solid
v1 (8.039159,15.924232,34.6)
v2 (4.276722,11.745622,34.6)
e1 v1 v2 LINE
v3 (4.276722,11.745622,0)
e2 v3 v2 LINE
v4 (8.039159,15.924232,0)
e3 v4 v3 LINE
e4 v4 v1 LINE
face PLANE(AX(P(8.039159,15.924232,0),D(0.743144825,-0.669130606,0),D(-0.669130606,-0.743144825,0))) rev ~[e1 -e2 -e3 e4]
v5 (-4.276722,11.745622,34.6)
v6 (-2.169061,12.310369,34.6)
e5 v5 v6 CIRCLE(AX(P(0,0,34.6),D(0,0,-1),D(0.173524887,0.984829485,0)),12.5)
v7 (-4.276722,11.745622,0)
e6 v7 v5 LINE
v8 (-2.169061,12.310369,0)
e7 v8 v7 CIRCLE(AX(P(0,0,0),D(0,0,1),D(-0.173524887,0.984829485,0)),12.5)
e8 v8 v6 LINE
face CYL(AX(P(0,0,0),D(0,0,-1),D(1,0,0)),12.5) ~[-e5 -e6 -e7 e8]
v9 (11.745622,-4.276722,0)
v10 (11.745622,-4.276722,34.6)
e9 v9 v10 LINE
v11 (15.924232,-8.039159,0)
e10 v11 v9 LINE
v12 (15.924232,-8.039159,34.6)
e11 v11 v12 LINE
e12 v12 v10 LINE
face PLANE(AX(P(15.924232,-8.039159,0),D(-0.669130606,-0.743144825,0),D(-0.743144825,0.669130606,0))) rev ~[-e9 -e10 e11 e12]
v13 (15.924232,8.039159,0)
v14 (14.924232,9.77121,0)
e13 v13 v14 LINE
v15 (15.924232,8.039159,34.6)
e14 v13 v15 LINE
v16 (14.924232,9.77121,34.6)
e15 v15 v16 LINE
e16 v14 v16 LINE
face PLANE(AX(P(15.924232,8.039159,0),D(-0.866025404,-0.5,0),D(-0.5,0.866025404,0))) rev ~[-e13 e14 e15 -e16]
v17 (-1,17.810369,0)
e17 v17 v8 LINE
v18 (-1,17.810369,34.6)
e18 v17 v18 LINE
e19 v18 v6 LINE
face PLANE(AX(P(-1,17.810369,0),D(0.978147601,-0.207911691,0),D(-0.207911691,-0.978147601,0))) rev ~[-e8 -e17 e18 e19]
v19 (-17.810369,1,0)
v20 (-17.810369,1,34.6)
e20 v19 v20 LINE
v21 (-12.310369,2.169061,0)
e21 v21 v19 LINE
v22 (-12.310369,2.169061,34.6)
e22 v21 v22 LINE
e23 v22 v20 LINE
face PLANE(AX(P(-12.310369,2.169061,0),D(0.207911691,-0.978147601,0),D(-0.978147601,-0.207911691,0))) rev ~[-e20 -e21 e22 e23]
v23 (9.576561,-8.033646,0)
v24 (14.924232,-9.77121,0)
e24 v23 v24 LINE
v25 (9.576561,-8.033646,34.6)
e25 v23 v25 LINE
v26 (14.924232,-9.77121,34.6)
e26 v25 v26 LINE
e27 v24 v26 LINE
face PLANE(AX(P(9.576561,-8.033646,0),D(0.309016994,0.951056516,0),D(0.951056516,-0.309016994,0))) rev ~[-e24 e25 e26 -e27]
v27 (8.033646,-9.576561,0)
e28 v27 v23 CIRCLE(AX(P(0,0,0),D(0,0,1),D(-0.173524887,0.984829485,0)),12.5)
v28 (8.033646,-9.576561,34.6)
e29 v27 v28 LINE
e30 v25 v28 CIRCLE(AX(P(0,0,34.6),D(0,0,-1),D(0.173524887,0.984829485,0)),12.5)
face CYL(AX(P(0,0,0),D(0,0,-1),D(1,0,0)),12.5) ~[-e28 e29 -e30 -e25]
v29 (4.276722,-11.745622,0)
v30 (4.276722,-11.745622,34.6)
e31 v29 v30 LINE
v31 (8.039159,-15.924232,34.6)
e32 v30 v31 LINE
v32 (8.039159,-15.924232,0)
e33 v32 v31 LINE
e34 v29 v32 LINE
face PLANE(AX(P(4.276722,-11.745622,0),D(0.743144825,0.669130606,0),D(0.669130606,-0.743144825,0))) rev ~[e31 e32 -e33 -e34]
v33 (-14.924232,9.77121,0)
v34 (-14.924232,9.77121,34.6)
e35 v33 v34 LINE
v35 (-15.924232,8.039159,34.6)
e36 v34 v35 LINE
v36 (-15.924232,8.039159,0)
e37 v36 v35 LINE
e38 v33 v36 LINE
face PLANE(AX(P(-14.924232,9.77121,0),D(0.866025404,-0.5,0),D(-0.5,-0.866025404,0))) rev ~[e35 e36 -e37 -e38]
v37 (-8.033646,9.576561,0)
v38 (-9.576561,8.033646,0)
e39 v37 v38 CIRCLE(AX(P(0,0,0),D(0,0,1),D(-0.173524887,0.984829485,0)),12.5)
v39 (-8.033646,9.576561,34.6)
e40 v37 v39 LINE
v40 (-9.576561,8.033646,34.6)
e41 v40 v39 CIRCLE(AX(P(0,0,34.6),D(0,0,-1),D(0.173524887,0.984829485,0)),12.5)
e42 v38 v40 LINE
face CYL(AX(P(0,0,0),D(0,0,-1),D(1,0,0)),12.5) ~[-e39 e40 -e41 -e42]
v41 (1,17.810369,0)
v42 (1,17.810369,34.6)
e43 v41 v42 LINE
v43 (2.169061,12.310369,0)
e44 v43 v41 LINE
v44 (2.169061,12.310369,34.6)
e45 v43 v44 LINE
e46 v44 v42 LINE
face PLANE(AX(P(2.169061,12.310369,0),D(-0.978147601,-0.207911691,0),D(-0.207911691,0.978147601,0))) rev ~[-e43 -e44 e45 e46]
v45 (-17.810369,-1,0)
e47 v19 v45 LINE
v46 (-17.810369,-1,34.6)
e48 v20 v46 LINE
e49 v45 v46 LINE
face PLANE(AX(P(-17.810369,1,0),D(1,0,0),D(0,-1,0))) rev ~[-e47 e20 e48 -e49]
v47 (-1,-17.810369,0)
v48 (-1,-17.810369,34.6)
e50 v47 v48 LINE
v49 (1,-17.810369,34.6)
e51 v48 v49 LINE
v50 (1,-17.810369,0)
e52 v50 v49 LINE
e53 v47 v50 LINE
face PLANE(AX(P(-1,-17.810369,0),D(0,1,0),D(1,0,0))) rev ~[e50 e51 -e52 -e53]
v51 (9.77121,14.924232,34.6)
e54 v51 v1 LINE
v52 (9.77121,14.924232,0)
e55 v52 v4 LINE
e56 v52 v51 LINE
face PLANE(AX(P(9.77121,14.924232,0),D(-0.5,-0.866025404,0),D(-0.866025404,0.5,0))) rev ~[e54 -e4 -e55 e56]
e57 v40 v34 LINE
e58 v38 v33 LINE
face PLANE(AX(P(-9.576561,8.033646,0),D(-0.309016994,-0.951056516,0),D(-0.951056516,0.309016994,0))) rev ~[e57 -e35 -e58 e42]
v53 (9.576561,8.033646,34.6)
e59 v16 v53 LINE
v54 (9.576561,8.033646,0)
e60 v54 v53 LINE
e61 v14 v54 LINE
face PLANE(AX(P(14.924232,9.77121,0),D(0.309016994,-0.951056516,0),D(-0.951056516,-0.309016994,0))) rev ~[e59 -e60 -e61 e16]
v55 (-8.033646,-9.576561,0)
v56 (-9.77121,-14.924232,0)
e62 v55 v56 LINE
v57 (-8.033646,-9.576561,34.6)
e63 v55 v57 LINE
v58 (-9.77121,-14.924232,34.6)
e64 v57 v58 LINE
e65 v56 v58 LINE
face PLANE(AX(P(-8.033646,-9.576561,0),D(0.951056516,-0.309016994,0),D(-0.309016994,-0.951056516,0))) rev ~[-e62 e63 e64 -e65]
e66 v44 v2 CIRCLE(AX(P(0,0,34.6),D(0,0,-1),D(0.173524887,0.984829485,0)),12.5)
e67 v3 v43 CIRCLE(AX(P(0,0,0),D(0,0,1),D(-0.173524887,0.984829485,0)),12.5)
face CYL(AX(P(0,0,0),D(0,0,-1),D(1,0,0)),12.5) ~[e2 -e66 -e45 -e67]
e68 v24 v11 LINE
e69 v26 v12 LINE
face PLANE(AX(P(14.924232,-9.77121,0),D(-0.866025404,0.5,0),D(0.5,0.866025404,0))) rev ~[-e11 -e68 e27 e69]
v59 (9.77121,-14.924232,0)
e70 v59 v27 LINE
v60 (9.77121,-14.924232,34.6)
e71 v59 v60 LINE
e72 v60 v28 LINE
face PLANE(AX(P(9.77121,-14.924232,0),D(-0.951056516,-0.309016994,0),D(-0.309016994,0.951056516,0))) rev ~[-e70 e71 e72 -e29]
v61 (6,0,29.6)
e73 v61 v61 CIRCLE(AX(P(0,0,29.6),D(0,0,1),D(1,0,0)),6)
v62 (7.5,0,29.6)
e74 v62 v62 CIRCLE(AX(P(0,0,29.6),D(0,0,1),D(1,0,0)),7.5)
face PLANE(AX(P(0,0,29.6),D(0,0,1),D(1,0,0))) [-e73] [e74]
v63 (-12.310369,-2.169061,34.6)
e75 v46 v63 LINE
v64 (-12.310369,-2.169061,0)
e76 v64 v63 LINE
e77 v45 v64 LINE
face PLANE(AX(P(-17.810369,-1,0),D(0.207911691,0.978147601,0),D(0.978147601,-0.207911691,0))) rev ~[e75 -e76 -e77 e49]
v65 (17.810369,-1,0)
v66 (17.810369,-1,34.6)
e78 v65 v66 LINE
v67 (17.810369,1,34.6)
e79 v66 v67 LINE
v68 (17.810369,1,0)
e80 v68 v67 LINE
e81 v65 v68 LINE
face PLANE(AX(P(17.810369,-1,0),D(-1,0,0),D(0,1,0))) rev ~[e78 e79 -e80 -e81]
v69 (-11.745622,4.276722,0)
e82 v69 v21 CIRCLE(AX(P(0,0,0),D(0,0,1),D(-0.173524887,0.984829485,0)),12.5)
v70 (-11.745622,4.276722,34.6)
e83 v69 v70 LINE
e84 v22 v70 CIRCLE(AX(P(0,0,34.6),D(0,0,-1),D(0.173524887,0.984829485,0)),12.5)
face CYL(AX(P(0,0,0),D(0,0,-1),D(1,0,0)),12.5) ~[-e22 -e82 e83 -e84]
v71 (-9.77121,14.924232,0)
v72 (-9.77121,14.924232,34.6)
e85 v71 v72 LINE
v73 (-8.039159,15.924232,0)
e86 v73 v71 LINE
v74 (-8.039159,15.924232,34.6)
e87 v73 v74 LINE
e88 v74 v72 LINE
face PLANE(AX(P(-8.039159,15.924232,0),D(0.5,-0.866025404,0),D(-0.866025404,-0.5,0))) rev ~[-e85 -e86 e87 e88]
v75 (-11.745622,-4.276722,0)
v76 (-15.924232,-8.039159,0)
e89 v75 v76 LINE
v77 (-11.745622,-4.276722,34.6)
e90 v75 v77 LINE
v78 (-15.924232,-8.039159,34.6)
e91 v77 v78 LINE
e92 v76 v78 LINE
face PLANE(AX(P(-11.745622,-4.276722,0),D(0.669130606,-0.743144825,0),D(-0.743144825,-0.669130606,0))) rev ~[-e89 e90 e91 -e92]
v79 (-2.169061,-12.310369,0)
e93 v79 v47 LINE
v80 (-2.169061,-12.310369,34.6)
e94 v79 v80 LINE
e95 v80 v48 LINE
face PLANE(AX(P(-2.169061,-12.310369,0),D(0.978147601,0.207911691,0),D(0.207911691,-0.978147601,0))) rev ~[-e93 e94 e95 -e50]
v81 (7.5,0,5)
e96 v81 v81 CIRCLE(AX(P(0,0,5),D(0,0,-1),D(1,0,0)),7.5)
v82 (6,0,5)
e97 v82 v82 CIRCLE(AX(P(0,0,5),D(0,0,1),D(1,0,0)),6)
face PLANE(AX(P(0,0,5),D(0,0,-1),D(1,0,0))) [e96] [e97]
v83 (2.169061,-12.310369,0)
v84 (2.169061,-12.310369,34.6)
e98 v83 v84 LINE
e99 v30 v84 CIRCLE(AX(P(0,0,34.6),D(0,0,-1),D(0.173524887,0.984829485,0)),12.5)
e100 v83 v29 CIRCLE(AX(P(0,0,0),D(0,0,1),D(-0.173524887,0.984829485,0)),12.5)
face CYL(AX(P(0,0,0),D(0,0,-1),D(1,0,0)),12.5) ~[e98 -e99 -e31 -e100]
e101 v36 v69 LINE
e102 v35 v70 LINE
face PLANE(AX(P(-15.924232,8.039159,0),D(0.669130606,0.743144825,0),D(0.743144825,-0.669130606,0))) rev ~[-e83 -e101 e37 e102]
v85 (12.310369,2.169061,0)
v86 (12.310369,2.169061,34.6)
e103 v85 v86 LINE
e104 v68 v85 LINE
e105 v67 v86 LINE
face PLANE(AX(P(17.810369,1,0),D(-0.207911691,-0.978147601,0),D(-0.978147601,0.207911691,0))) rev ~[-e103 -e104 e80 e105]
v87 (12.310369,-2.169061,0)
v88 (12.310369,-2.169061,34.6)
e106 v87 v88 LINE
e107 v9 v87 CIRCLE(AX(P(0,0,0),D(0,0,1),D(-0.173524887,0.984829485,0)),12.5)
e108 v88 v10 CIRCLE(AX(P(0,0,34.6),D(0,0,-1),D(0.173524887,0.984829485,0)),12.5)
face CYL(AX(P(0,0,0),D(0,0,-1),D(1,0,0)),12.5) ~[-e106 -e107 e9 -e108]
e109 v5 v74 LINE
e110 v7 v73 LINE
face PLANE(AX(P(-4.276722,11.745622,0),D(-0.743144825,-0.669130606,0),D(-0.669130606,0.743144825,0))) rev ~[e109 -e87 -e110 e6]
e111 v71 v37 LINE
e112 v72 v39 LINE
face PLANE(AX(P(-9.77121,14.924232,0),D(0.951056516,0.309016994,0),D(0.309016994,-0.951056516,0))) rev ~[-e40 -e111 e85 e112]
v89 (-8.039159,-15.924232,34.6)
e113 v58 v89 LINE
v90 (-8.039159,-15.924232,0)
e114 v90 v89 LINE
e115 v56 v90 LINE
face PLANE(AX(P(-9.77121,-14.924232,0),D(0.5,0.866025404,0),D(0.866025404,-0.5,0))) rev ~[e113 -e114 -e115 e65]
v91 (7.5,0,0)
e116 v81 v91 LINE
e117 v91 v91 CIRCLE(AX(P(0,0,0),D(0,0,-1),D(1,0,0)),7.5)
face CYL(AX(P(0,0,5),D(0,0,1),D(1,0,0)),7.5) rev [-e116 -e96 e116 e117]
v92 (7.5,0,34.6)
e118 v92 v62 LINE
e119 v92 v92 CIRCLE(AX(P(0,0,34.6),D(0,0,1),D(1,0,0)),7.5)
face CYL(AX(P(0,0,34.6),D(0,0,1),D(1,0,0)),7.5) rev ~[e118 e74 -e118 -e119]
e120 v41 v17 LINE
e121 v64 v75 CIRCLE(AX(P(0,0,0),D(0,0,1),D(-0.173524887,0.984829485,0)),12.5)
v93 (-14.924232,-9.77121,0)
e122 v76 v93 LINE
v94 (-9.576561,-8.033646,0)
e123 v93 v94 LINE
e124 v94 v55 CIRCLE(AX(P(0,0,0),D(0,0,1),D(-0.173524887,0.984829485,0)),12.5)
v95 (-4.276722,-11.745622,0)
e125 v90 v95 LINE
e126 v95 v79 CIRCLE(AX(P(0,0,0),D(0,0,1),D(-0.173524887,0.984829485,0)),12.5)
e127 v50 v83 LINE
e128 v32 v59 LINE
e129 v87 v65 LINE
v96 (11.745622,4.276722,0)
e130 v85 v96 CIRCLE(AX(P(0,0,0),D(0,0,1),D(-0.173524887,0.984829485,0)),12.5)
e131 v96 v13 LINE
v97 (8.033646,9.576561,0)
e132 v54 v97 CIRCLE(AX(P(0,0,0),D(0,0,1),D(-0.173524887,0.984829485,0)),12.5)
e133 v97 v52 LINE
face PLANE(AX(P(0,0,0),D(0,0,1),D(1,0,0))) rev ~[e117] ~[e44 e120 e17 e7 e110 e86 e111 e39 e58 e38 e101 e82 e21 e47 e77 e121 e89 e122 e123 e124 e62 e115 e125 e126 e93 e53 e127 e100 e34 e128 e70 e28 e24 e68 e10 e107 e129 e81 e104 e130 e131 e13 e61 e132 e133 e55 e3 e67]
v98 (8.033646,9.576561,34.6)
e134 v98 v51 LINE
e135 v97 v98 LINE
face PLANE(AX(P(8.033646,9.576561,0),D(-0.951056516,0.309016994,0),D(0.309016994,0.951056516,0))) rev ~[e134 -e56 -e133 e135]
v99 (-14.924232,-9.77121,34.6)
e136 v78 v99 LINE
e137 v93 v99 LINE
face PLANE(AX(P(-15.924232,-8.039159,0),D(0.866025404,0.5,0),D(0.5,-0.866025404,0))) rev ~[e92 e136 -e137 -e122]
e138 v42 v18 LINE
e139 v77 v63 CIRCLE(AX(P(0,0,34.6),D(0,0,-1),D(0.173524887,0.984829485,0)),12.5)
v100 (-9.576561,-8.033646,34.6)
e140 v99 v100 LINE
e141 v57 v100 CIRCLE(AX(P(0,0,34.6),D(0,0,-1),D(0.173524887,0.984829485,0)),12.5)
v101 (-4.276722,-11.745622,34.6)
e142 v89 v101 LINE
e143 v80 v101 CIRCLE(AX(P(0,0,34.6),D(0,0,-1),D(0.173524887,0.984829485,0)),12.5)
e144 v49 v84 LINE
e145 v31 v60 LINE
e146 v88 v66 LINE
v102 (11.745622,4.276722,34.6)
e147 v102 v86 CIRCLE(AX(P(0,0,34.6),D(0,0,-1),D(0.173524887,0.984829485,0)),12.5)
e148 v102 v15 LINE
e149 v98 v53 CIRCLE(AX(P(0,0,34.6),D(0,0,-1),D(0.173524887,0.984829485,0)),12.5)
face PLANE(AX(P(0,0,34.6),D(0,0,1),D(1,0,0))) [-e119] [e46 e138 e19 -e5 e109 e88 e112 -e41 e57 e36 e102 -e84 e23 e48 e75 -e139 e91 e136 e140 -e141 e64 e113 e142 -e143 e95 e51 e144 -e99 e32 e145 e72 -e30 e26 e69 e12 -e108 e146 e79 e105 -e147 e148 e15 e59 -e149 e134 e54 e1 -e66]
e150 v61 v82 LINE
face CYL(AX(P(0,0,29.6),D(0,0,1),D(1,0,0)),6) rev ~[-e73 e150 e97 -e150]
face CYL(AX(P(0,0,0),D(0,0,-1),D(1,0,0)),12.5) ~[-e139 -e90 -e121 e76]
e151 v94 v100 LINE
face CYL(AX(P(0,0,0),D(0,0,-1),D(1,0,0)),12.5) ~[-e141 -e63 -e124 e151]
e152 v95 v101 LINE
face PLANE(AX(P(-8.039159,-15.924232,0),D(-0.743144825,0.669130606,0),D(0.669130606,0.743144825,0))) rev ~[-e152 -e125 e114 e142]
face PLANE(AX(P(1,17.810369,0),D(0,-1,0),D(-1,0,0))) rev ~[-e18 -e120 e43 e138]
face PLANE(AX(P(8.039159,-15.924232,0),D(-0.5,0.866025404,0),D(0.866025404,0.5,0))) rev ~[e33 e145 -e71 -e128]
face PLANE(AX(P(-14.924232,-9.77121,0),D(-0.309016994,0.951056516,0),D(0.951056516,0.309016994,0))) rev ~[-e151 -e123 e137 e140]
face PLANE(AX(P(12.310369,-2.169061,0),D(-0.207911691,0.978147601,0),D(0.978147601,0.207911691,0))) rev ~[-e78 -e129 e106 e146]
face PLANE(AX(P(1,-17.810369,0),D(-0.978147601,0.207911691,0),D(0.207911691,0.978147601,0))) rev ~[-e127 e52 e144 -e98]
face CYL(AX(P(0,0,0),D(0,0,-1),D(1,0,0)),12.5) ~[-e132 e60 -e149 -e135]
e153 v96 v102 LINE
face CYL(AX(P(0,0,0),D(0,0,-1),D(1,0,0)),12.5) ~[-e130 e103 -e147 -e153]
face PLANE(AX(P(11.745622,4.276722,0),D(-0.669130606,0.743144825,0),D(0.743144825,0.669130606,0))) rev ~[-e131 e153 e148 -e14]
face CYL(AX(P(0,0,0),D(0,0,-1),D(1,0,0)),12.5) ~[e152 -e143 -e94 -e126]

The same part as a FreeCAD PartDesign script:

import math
import FreeCAD as App
import Part
import Sketcher
Q = App.Units.Quantity

doc = App.newDocument("Part")
params = doc.addObject("Spreadsheet::Sheet", "Params")
for row, (alias, value) in enumerate([
    ("sketch1_diameter", "25 mm"),
    ("pad1_length", "34.6 mm"),
    ("sketch2_radius", "12.5 mm"),
    ("sketch2_width", "2 mm"),
    ("pad2_length", "34.6 mm"),
    ("sketch3_diameter", "15 mm"),
    ("pocket1_length", "5 mm"),
    ("sketch4_diameter", "12 mm"),
    ("pocket2_length", "24.6 mm"),
    ("sketch5_diameter", "15 mm"),
    ("pocket3_length", "5 mm"),
], start=1):
    params.set(f"A{row}", alias)
    params.set(f"B{row}", "=" + value)
    params.setAlias(f"B{row}", alias)

body = doc.addObject("PartDesign::Body", "Body")

sketch1 = body.newObject("Sketcher::SketchObject", "Sketch")
sketch1.AttachmentSupport = (doc.getObject("XY_Plane"), [""])
sketch1.MapMode = "FlatFace"
sketch1.addGeometry(Part.Circle(App.Vector(0, 0, 0), App.Vector(0, 0, 1), 12), False)
sketch1.addConstraint([
    Sketcher.Constraint("Coincident", 0, 3, -1, 1),
    Sketcher.Constraint("Diameter", 0, Q("25 mm")),
])
sketch1.setExpression("Constraints[1]", "Params.sketch1_diameter")
pad1 = body.newObject("PartDesign::Pad", "Pad")
pad1.Profile = sketch1
pad1.setExpression("Length", "Params.pad1_length")

sketch2 = body.newObject("Sketcher::SketchObject", "Sketch001")
sketch2.AttachmentSupport = (doc.getObject("XY_Plane"), [""])
sketch2.MapMode = "FlatFace"
sketch2.addGeometry([
    Part.LineSegment(App.Vector(-1, 17.8, 0), App.Vector(-2.2, 12.3, 0)),
    Part.ArcOfCircle(Part.Circle(App.Vector(0, 0, 0), App.Vector(0, 0, 1), 12.5), math.radians(80.01), math.radians(99.99)),
    Part.LineSegment(App.Vector(2.2, 12.3, 0), App.Vector(1, 17.8, 0)),
    Part.LineSegment(App.Vector(1, 17.8, 0), App.Vector(-1, 17.8, 0)),
], False)
sketch2.addConstraint([
    Sketcher.Constraint("Coincident", 0, 2, 1, 2),
    Sketcher.Constraint("Coincident", 1, 1, 2, 1),
    Sketcher.Constraint("Coincident", 2, 2, 3, 1),
    Sketcher.Constraint("Coincident", 3, 2, 0, 1),
    Sketcher.Constraint("Horizontal", 3),
    Sketcher.Constraint("Coincident", 1, 3, -1, 1),
    Sketcher.Constraint("Horizontal", 0, 2, 1, 1),
    Sketcher.Constraint("Equal", 0, 2),
    Sketcher.Constraint("Radius", 1, Q("12.5 mm")),
    Sketcher.Constraint("DistanceX", 3, 2, 3, 1, Q("2 mm")),
    Sketcher.Constraint("Angle", 0, Q("-102 deg")),
    Sketcher.Constraint("DistanceY", 1, 1, 2, 2, Q("5.5 mm")),
])
sketch2.setExpression("Constraints[8]", "Params.sketch2_radius")
sketch2.setExpression("Constraints[9]", "Params.sketch2_width")
pad2 = body.newObject("PartDesign::Pad", "Pad001")
pad2.Profile = sketch2
pad2.setExpression("Length", "Params.pad2_length")
doc.recompute()

polarpattern = body.newObject("PartDesign::PolarPattern", "PolarPattern")
polarpattern.Originals = [pad2]
polarpattern.Axis = (doc.getObject("Z_Axis"), [""])
polarpattern.Angle = 360
polarpattern.Occurrences = 12
body.Tip = polarpattern

sketch3 = body.newObject("Sketcher::SketchObject", "Sketch002")
sketch3.AttachmentSupport = (doc.getObject("XY_Plane"), [""])
sketch3.MapMode = "FlatFace"
sketch3.AttachmentOffset = App.Placement(App.Vector(0, 0, 34.6), App.Rotation())
sketch3.addGeometry(Part.Circle(App.Vector(0, 0, 0), App.Vector(0, 0, 1), 8), False)
sketch3.addConstraint([
    Sketcher.Constraint("Coincident", 0, 3, -1, 1),
    Sketcher.Constraint("Diameter", 0, Q("15 mm")),
])
sketch3.setExpression("Constraints[1]", "Params.sketch3_diameter")
pocket1 = body.newObject("PartDesign::Pocket", "Pocket")
pocket1.Profile = sketch3
pocket1.setExpression("Length", "Params.pocket1_length")

sketch4 = body.newObject("Sketcher::SketchObject", "Sketch003")
sketch4.AttachmentSupport = (doc.getObject("XY_Plane"), [""])
sketch4.MapMode = "FlatFace"
sketch4.AttachmentOffset = App.Placement(App.Vector(0, 0, 29.6), App.Rotation())
sketch4.addGeometry(Part.Circle(App.Vector(0, 0, 0), App.Vector(0, 0, 1), 6), False)
sketch4.addConstraint([
    Sketcher.Constraint("Coincident", 0, 3, -1, 1),
    Sketcher.Constraint("Diameter", 0, Q("12 mm")),
])
sketch4.setExpression("Constraints[1]", "Params.sketch4_diameter")
pocket2 = body.newObject("PartDesign::Pocket", "Pocket001")
pocket2.Profile = sketch4
pocket2.setExpression("Length", "Params.pocket2_length")

sketch5 = body.newObject("Sketcher::SketchObject", "Sketch004")
sketch5.AttachmentSupport = (doc.getObject("XY_Plane"), [""])
sketch5.MapMode = "FlatFace"
sketch5.AttachmentOffset = App.Placement(App.Vector(0, 0, 5), App.Rotation())
sketch5.addGeometry(Part.Circle(App.Vector(0, 0, 0), App.Vector(0, 0, 1), 8), False)
sketch5.addConstraint([
    Sketcher.Constraint("Coincident", 0, 3, -1, 1),
    Sketcher.Constraint("Diameter", 0, Q("15 mm")),
])
sketch5.setExpression("Constraints[1]", "Params.sketch5_diameter")
pocket3 = body.newObject("PartDesign::Pocket", "Pocket002")
pocket3.Profile = sketch5
pocket3.setExpression("Length", "Params.pocket3_length")

doc.recompute()
